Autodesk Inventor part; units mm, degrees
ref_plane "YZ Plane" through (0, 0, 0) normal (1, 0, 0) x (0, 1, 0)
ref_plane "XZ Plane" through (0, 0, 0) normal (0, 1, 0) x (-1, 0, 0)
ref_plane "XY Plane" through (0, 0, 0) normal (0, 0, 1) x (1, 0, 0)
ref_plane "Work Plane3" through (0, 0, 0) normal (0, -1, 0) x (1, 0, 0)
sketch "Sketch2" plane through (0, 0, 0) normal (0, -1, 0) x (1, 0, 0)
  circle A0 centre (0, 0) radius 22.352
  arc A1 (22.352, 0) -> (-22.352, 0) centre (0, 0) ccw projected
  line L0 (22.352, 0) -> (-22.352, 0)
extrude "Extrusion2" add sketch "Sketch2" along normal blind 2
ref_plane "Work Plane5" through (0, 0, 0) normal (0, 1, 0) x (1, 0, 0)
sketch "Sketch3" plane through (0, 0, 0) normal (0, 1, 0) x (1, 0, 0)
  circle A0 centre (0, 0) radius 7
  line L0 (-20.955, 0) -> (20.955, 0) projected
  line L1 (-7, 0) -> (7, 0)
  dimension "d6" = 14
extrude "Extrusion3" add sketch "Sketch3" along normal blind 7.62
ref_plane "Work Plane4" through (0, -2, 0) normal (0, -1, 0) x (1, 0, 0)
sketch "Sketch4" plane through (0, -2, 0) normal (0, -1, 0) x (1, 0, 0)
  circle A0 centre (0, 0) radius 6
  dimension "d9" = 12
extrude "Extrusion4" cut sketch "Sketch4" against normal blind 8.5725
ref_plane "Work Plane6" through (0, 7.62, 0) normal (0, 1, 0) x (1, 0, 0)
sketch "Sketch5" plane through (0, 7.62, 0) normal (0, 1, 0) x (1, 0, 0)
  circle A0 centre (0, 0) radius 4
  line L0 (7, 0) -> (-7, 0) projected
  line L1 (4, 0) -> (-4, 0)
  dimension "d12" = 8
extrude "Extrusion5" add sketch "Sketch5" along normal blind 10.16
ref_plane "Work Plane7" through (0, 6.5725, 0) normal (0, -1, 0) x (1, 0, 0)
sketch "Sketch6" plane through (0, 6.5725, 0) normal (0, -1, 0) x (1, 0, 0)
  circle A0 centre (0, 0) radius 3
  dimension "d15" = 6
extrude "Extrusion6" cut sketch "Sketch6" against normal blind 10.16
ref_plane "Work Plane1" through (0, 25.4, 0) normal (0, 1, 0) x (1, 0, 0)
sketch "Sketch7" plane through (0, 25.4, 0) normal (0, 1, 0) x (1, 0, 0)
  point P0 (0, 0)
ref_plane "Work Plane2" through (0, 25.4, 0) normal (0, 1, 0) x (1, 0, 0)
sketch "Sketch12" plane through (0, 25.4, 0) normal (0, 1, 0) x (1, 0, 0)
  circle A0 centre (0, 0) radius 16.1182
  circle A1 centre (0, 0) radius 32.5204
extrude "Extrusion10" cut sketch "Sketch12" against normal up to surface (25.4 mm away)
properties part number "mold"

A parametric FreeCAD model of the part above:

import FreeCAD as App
import Part
import Sketcher

V = App.Vector
Q = App.Units.Quantity

doc = App.newDocument("Part")
body = doc.addObject("PartDesign::Body", "Body")

# Sketch on XZ plane
sketch1 = body.newObject("Sketcher::SketchObject", "Sketch")
sketch1.AttachmentSupport = (doc.getObject("XZ_Plane"), [""])
sketch1.MapMode = "FlatFace"
sketch1.addGeometry(Part.Circle(V(0, 0, 0), V(0, 0, 1), 22), False)
sketch1.addConstraint([
    Sketcher.Constraint("Coincident", 0, 3, -1, 1),
    Sketcher.Constraint("Diameter", 0, Q("44.704 mm")),
])
pad1 = body.newObject("PartDesign::Pad", "Pad")
pad1.Profile = sketch1
pad1.Length = 2

# Sketch on XZ plane
sketch2 = body.newObject("Sketcher::SketchObject", "Sketch001")
sketch2.AttachmentSupport = (doc.getObject("XZ_Plane"), [""])
sketch2.MapMode = "FlatFace"
sketch2.addGeometry(Part.Circle(V(0, 0, 0), V(0, 0, 1), 7), False)
sketch2.addConstraint([
    Sketcher.Constraint("Coincident", 0, 3, -1, 1),
    Sketcher.Constraint("Diameter", 0, Q("14 mm")),
])
pad2 = body.newObject("PartDesign::Pad", "Pad001")
pad2.Profile = sketch2
pad2.Length = 7.62
pad2.Reversed = True

# Sketch on XZ plane
sketch3 = body.newObject("Sketcher::SketchObject", "Sketch002")
sketch3.AttachmentSupport = (doc.getObject("XZ_Plane"), [""])
sketch3.MapMode = "FlatFace"
sketch3.AttachmentOffset = App.Placement(V(0, 0, 2), App.Rotation())
sketch3.addGeometry(Part.Circle(V(0, 0, 0), V(0, 0, 1), 6), False)
sketch3.addConstraint([
    Sketcher.Constraint("Coincident", 0, 3, -1, 1),
    Sketcher.Constraint("Diameter", 0, Q("12 mm")),
])
pocket1 = body.newObject("PartDesign::Pocket", "Pocket")
pocket1.Profile = sketch3
pocket1.Length = 8.5725

# Sketch on XZ plane
sketch4 = body.newObject("Sketcher::SketchObject", "Sketch003")
sketch4.AttachmentSupport = (doc.getObject("XZ_Plane"), [""])
sketch4.MapMode = "FlatFace"
sketch4.AttachmentOffset = App.Placement(V(0, 0, -7.62), App.Rotation())
sketch4.addGeometry(Part.Circle(V(0, 0, 0), V(0, 0, 1), 4), False)
sketch4.addConstraint([
    Sketcher.Constraint("Coincident", 0, 3, -1, 1),
    Sketcher.Constraint("Diameter", 0, Q("8 mm")),
])
pad3 = body.newObject("PartDesign::Pad", "Pad002")
pad3.Profile = sketch4
pad3.Length = 10.16
pad3.Reversed = True

# Sketch on XZ plane
sketch5 = body.newObject("Sketcher::SketchObject", "Sketch004")
sketch5.AttachmentSupport = (doc.getObject("XZ_Plane"), [""])
sketch5.MapMode = "FlatFace"
sketch5.AttachmentOffset = App.Placement(V(0, 0, -6.5725), App.Rotation())
sketch5.addGeometry(Part.Circle(V(0, 0, 0), V(0, 0, 1), 3), False)
sketch5.addConstraint([
    Sketcher.Constraint("Coincident", 0, 3, -1, 1),
    Sketcher.Constraint("Diameter", 0, Q("6 mm")),
])
pocket2 = body.newObject("PartDesign::Pocket", "Pocket001")
pocket2.Profile = sketch5
pocket2.Length = 10.16

# Sketch on XZ plane
sketch6 = body.newObject("Sketcher::SketchObject", "Sketch005")
sketch6.AttachmentSupport = (doc.getObject("XZ_Plane"), [""])
sketch6.MapMode = "FlatFace"
sketch6.AttachmentOffset = App.Placement(V(0, 0, -25.4), App.Rotation())
sketch6.addGeometry([
    Part.Circle(V(0, 0, 0), V(0, 0, 1), 33),
    Part.Circle(V(0, 0, 0), V(0, 0, 1), 16),
], False)
sketch6.addConstraint([
    Sketcher.Constraint("Coincident", 0, 3, -1, 1),
    Sketcher.Constraint("Coincident", 1, 3, -1, 1),
    Sketcher.Constraint("Diameter", 0, Q("65.0408 mm")),
    Sketcher.Constraint("Diameter", 1, Q("32.2364 mm")),
])
pocket3 = body.newObject("PartDesign::Pocket", "Pocket002")
pocket3.Profile = sketch6
pocket3.Length = 25.4
pocket3.Reversed = True

doc.recompute()
